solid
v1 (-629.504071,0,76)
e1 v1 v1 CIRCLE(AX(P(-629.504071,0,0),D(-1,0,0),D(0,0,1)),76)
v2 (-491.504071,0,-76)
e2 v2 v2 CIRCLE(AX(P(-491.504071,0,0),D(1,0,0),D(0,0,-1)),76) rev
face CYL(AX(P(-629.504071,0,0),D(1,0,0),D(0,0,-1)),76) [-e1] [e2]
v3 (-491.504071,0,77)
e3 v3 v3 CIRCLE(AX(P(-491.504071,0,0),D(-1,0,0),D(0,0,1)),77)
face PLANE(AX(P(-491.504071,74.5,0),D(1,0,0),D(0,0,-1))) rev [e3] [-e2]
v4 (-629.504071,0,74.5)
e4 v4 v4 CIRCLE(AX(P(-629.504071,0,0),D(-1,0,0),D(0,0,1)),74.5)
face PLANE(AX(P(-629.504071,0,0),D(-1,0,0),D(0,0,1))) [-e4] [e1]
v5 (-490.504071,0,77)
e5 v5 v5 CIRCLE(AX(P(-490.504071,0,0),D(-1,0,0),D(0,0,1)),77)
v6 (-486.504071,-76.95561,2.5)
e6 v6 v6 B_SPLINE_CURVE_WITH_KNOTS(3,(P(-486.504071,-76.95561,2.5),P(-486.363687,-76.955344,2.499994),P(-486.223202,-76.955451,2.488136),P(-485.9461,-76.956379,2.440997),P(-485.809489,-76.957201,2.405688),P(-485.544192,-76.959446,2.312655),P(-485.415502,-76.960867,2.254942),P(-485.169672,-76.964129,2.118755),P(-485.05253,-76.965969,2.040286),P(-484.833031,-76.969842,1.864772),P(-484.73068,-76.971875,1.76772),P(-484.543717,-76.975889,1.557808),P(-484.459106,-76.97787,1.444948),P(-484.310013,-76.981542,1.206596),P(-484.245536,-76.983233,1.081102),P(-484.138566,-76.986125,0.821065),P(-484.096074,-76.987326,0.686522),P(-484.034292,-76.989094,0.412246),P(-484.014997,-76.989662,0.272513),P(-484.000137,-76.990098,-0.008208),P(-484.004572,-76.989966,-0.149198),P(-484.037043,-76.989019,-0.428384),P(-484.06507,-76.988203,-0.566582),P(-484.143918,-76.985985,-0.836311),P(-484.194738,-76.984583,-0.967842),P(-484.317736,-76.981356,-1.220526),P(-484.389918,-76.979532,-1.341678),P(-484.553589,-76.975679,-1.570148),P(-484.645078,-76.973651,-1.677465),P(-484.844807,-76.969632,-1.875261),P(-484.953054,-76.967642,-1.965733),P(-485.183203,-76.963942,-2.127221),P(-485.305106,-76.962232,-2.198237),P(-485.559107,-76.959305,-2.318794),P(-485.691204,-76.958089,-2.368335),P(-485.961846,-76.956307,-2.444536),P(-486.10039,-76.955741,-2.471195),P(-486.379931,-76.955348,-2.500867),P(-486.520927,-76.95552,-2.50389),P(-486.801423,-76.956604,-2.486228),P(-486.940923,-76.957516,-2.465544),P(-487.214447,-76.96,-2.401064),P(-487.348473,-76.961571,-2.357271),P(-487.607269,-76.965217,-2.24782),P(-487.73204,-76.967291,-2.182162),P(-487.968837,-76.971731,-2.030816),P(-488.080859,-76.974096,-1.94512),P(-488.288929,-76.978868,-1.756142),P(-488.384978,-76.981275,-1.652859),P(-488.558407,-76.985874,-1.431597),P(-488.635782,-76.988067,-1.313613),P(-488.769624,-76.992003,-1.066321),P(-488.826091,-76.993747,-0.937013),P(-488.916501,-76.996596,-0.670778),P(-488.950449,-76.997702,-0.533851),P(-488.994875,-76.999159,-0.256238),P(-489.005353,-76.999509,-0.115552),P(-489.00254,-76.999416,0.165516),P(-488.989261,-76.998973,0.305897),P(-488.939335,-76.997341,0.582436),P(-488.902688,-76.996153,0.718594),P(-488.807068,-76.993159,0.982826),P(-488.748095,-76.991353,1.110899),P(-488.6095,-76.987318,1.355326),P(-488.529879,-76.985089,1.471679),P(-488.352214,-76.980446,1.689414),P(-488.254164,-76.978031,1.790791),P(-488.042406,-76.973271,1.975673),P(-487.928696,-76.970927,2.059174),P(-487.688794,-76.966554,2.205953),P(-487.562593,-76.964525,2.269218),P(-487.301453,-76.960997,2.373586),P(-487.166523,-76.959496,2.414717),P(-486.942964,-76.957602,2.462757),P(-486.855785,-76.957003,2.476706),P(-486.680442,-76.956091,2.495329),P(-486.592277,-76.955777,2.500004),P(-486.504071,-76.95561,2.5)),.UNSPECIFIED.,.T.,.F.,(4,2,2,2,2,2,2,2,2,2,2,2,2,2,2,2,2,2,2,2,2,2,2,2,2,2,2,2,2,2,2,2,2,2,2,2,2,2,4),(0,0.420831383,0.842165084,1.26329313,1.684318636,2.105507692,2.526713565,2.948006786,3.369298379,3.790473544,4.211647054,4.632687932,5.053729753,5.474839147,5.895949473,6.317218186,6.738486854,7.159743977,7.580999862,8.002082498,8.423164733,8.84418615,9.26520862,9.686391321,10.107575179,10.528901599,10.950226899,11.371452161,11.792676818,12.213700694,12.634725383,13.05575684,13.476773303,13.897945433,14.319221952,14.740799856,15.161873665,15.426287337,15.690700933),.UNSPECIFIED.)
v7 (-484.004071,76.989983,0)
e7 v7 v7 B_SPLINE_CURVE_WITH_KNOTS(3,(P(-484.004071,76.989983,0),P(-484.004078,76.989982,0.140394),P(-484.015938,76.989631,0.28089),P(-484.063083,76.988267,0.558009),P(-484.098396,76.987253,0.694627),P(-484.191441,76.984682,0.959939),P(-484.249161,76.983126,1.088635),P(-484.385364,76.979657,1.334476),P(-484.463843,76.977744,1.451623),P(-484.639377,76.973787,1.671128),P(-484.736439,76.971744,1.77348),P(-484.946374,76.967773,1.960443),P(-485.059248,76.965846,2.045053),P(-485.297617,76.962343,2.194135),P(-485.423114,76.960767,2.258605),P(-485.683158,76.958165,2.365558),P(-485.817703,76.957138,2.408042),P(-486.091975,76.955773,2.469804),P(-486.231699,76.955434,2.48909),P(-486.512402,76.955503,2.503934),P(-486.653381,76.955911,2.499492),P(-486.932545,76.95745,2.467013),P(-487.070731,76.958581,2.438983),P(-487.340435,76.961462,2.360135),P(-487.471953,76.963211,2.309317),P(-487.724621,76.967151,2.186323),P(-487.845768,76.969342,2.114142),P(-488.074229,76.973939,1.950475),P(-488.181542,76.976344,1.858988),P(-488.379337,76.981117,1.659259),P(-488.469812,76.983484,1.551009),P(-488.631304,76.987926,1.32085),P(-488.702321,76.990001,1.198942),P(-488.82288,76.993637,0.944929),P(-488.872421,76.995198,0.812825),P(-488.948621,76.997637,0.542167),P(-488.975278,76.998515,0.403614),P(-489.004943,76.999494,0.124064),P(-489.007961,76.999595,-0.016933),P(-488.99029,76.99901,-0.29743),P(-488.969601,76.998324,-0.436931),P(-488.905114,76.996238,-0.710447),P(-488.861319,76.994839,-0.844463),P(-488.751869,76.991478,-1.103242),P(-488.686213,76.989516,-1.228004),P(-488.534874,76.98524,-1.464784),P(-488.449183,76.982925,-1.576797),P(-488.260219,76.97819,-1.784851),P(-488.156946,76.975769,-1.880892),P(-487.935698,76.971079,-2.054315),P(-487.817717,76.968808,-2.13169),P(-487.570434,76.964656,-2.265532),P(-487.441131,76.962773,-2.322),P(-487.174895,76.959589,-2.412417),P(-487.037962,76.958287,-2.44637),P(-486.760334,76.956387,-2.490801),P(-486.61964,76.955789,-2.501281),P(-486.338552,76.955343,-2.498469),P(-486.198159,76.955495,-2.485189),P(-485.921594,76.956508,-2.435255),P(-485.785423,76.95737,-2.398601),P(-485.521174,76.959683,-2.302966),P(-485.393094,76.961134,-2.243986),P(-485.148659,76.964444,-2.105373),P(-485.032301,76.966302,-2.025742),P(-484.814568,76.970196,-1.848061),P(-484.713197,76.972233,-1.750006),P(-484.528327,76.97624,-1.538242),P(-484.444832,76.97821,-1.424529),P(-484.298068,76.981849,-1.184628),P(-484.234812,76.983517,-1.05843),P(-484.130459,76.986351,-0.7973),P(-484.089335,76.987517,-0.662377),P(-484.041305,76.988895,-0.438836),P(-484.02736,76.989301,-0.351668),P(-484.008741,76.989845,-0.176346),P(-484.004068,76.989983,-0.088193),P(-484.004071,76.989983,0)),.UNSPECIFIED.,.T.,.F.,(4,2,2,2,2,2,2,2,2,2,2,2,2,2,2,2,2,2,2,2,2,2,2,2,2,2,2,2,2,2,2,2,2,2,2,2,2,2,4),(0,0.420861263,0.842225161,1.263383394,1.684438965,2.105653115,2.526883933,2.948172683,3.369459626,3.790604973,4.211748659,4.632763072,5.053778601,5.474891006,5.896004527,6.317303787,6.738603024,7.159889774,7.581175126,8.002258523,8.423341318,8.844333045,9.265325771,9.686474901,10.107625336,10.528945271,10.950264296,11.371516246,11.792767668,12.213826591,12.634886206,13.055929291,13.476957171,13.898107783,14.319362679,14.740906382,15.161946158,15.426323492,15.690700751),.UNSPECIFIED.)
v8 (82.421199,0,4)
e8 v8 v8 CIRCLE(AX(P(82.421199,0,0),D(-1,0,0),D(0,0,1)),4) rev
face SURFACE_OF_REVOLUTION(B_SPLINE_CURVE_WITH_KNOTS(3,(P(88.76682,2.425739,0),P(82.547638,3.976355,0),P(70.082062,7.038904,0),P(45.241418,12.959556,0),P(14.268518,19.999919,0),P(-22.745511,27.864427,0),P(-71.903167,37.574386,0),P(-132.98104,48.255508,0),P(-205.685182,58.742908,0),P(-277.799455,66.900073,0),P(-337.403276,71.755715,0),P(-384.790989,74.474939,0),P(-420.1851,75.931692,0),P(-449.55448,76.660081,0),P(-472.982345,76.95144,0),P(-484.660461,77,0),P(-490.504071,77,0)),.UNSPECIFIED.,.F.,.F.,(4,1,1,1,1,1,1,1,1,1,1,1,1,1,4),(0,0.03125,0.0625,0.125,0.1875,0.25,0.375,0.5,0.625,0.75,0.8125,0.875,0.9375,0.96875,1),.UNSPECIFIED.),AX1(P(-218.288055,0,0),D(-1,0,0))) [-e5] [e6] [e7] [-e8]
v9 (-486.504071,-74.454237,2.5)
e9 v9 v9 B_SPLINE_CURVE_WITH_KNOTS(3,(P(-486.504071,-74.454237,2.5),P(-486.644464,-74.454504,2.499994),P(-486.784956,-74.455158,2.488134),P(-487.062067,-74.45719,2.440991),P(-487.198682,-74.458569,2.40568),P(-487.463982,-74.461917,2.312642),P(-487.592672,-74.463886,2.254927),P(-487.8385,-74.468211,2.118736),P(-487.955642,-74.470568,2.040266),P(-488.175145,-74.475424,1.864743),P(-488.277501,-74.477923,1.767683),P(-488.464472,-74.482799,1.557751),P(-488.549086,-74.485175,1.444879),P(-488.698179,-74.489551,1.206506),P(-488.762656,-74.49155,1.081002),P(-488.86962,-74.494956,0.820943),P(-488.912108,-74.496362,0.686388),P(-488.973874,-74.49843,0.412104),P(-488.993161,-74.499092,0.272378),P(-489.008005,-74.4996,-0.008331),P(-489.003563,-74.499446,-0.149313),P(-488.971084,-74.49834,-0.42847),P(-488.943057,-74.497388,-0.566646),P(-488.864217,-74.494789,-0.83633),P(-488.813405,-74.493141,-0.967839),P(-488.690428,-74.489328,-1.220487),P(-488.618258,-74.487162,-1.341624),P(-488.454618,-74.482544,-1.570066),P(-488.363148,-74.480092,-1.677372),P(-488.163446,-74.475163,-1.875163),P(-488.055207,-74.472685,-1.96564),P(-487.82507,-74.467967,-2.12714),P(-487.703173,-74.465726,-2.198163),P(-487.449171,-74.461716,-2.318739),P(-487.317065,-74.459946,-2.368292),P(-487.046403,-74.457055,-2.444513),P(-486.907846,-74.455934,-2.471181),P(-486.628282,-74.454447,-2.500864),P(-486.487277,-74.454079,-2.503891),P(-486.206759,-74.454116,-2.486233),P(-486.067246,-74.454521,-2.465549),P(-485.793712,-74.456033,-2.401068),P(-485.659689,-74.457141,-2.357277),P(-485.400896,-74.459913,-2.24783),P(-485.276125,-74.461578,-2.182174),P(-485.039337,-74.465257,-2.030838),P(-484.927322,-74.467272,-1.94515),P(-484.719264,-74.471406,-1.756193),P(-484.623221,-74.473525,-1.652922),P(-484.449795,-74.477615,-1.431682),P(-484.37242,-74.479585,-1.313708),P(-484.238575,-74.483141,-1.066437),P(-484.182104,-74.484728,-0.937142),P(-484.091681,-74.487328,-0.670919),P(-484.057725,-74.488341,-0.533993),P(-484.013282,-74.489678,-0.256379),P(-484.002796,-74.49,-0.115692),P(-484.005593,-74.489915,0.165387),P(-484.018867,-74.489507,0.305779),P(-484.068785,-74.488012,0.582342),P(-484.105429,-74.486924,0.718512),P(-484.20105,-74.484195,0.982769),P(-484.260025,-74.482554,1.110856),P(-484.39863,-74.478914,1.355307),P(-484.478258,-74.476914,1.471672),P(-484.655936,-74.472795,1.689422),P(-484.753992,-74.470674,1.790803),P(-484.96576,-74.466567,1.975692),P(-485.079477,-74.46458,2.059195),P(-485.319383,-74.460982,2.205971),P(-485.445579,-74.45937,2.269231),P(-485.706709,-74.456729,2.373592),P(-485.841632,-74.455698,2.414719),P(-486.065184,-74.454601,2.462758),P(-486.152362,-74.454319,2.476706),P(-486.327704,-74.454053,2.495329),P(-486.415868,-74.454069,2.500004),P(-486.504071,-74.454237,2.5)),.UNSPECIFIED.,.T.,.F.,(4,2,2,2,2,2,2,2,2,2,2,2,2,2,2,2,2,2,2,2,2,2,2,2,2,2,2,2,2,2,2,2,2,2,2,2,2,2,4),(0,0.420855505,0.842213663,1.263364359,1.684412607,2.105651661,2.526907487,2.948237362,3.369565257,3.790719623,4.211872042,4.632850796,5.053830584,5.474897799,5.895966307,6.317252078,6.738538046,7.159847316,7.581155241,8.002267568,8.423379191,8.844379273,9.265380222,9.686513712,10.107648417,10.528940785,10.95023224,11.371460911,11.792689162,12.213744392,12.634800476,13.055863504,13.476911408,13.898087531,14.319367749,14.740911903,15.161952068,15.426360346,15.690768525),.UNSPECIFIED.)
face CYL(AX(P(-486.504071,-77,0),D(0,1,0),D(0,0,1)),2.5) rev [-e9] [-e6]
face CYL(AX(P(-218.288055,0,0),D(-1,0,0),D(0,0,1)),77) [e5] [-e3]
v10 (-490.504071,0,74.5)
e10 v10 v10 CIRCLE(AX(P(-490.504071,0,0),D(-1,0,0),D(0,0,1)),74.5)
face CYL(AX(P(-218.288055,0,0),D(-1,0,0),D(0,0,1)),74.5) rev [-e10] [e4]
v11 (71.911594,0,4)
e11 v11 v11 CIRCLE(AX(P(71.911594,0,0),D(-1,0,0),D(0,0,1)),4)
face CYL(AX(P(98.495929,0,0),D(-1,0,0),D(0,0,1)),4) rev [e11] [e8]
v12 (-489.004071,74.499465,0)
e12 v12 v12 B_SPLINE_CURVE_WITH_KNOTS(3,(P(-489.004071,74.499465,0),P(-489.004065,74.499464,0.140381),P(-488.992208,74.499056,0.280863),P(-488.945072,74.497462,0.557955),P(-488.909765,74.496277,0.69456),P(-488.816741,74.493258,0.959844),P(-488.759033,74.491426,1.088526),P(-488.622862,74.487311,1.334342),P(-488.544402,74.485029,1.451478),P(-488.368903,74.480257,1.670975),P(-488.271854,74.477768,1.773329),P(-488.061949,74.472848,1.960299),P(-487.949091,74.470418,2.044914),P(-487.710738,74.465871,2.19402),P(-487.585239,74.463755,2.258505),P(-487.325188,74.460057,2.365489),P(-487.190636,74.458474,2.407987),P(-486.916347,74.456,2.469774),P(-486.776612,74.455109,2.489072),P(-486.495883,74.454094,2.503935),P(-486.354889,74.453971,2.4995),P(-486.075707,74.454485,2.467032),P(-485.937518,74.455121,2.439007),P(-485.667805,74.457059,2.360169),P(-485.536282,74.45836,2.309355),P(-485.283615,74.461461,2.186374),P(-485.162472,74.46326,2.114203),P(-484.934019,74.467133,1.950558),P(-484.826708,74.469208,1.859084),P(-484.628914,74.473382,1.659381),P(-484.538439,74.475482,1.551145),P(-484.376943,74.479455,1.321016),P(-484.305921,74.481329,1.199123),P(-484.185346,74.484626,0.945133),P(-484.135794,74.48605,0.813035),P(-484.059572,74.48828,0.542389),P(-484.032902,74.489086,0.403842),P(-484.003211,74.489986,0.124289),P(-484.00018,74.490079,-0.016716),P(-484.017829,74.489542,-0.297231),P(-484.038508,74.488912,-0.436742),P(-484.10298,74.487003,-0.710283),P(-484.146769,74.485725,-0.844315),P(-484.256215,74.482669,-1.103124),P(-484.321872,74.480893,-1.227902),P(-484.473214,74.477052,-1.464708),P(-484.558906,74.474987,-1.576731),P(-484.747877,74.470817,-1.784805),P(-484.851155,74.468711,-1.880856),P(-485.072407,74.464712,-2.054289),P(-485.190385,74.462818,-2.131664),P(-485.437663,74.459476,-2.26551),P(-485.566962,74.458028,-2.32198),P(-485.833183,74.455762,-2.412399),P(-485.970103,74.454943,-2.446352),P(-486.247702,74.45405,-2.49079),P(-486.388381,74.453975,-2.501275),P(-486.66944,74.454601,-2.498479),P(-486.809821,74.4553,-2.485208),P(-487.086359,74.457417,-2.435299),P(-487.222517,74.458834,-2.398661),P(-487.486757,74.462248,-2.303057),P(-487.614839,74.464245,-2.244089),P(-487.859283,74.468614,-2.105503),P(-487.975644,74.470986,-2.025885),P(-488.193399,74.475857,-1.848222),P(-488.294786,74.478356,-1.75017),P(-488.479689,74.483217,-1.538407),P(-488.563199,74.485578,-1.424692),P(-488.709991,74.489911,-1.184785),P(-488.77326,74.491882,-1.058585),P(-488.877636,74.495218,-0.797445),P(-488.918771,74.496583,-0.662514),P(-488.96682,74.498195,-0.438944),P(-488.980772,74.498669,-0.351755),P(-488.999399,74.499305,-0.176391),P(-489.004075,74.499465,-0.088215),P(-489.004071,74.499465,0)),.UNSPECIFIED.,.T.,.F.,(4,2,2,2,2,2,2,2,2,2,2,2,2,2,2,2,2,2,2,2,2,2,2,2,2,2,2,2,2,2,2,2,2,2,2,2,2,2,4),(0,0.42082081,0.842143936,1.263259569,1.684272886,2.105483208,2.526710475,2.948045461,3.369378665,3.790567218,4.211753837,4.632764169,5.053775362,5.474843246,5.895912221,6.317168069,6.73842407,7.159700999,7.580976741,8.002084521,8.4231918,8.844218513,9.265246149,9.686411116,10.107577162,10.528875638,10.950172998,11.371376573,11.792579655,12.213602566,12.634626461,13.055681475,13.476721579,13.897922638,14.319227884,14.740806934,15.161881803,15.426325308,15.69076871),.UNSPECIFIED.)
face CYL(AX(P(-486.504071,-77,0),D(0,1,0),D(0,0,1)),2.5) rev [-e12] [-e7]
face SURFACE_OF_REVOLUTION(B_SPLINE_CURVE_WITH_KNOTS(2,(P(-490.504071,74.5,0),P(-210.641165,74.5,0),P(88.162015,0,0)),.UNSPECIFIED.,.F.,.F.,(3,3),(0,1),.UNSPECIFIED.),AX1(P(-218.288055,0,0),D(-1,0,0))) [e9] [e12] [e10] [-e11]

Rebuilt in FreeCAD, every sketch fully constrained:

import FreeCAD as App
import Part
import Sketcher
from FreeCAD import Vector
Q = App.Units.Quantity

doc = App.newDocument("Part")
body = doc.addObject("PartDesign::Body", "Body")

sketch1 = body.newObject("Sketcher::SketchObject", "Sketch")
sketch1.AttachmentSupport = (doc.getObject("XY_Plane"), [""])
sketch1.MapMode = "FlatFace"
sketch1.addGeometry(Part.LineSegment(Vector(-491.504071, 74.5, 0), Vector(-490.504071, 74.5, 0)), False)
sketch1.addGeometry(Part.BSplineCurve([Vector(-490.504071, 74.5, 0), Vector(-210.641165, 74.5, 0), Vector(88.162015, 0, 0)], [3, 3], [0, 1], False, 2, [1, 1, 1], False), False)
sketch1.addGeometry(Part.LineSegment(Vector(88.162015, 0, 0), Vector(98.495929, 0, 0)), False)
sketch1.addGeometry(Part.LineSegment(Vector(98.495929, 0, 0), Vector(88.76682, 2.425739, 0)), False)
sketch1.addGeometry(Part.BSplineCurve([Vector(-490.504071, 77, 0), Vector(-484.660461, 77, 0), Vector(-472.982345, 76.95144, 0), Vector(-449.55448, 76.660081, 0), Vector(-420.1851, 75.931692, 0), Vector(-384.790989, 74.474939, 0), Vector(-337.403276, 71.755715, 0), Vector(-277.799455, 66.900073, 0), Vector(-205.685182, 58.742908, 0), Vector(-132.98104, 48.255508, 0), Vector(-71.903167, 37.574386, 0), Vector(-22.745511, 27.864427, 0), Vector(14.268518, 19.999919, 0), Vector(45.241418, 12.959556, 0), Vector(70.082062, 7.038904, 0), Vector(82.547638, 3.976355, 0), Vector(88.76682, 2.425739, 0)], [4, 1, 1, 1, 1, 1, 1, 1, 1, 1, 1, 1, 1, 1, 4], [0, 0.03125, 0.0625, 0.125, 0.1875, 0.25, 0.375, 0.5, 0.625, 0.75, 0.8125, 0.875, 0.9375, 0.96875, 1], False, 3, [1, 1, 1, 1, 1, 1, 1, 1, 1, 1, 1, 1, 1, 1, 1, 1, 1], False), False)
sketch1.addGeometry(Part.LineSegment(Vector(-490.504071, 77, 0), Vector(-491.504071, 77, 0)), False)
sketch1.addGeometry(Part.LineSegment(Vector(-491.504071, 77, 0), Vector(-491.504071, 74.5, 0)), False)
sketch1.addConstraint(Sketcher.Constraint("Block", 1))
sketch1.addConstraint(Sketcher.Constraint("Block", 4))
sketch1.addConstraint(Sketcher.Constraint("Coincident", 0, 2, 1, 1))
sketch1.addConstraint(Sketcher.Constraint("Coincident", 1, 2, 2, 1))
sketch1.addConstraint(Sketcher.Constraint("Coincident", 2, 2, 3, 1))
sketch1.addConstraint(Sketcher.Constraint("Coincident", 3, 2, 4, 2))
sketch1.addConstraint(Sketcher.Constraint("Coincident", 4, 1, 5, 1))
sketch1.addConstraint(Sketcher.Constraint("Coincident", 5, 2, 6, 1))
sketch1.addConstraint(Sketcher.Constraint("Coincident", 6, 2, 0, 1))
sketch1.addConstraint(Sketcher.Constraint("Horizontal", 0))
sketch1.addConstraint(Sketcher.Constraint("Horizontal", 2))
sketch1.addConstraint(Sketcher.Constraint("Horizontal", 5))
sketch1.addConstraint(Sketcher.Constraint("Vertical", 6))
sketch1.addConstraint(Sketcher.Constraint("DistanceX", 0, 1, 0, 2, Q("1 mm")))
sketch1.addConstraint(Sketcher.Constraint("DistanceX", 0, 2, 2, 2, Q("589 mm")))
revolution = body.newObject("PartDesign::Revolution", "Revolution")
revolution.Profile = sketch1
revolution.ReferenceAxis = (sketch1, ["H_Axis"])
revolution.Angle = 360

sketch2 = body.newObject("Sketcher::SketchObject", "Sketch001")
sketch2.AttachmentSupport = (doc.getObject("YZ_Plane"), [""])
sketch2.MapMode = "FlatFace"
sketch2.AttachmentOffset = App.Placement(Vector(0, 0, -491.504071), App.Rotation())
sketch2.addGeometry(Part.Circle(Vector(0, 0, 0), Vector(0, 0, 1), 76), False)
sketch2.addGeometry(Part.Circle(Vector(0, 0, 0), Vector(0, 0, 1), 74.5), False)
sketch2.addConstraint(Sketcher.Constraint("Coincident", 0, 3, -1, 1))
sketch2.addConstraint(Sketcher.Constraint("Coincident", 1, 3, -1, 1))
sketch2.addConstraint(Sketcher.Constraint("Diameter", 0, Q("152 mm")))
sketch2.addConstraint(Sketcher.Constraint("Diameter", 1, Q("149 mm")))
pad1 = body.newObject("PartDesign::Pad", "Pad")
pad1.Profile = sketch2
pad1.Length = 138
pad1.Reversed = True

sketch3 = body.newObject("Sketcher::SketchObject", "Sketch002")
sketch3.AttachmentSupport = (doc.getObject("XZ_Plane"), [""])
sketch3.MapMode = "FlatFace"
sketch3.addGeometry(Part.Circle(Vector(-486.504071, 0, 0), Vector(0, 0, 1), 2.5), False)
sketch3.addConstraint(Sketcher.Constraint("PointOnObject", 0, 3, -1))
sketch3.addConstraint(Sketcher.Constraint("Diameter", 0, Q("5 mm")))
sketch3.addConstraint(Sketcher.Constraint("DistanceX", 0, 3, -1, 1, Q("486.504071 mm")))
pocket1 = body.newObject("PartDesign::Pocket", "Pocket")
pocket1.Profile = sketch3
pocket1.Type = "ThroughAll"
pocket1.Midplane = True

sketch4 = body.newObject("Sketcher::SketchObject", "Sketch003")
sketch4.AttachmentSupport = (doc.getObject("YZ_Plane"), [""])
sketch4.MapMode = "FlatFace"
sketch4.addGeometry(Part.Circle(Vector(0, 0, 0), Vector(0, 0, 1), 4), False)
sketch4.addConstraint(Sketcher.Constraint("Coincident", 0, 3, -1, 1))
sketch4.addConstraint(Sketcher.Constraint("Diameter", 0, Q("8 mm")))
pocket2 = body.newObject("PartDesign::Pocket", "Pocket001")
pocket2.Profile = sketch4
pocket2.Type = "ThroughAll"
pocket2.Reversed = True

doc.recompute()
